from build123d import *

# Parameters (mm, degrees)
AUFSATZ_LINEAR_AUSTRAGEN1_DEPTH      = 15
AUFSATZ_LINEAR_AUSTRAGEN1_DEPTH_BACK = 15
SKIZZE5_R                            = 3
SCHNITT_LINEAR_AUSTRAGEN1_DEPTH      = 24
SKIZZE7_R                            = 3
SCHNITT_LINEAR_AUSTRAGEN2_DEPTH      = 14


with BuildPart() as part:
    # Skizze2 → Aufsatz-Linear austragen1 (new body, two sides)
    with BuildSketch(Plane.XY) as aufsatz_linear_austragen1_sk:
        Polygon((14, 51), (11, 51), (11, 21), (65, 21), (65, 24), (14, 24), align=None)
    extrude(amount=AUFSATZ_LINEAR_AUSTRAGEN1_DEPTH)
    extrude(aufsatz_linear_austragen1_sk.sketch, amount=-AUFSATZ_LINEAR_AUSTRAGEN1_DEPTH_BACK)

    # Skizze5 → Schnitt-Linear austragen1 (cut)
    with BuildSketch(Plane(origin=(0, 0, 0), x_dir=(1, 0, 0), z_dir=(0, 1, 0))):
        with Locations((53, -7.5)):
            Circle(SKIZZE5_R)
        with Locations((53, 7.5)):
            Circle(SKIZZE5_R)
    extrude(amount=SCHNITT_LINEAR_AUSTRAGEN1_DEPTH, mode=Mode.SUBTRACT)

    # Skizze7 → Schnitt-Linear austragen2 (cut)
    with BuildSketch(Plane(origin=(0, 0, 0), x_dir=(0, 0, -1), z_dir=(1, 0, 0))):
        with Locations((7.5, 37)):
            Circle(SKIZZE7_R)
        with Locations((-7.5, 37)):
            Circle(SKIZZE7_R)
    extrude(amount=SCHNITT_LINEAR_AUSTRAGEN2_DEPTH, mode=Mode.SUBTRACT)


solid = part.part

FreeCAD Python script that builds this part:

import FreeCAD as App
import Part
import Sketcher
Q = App.Units.Quantity


def add_polygon(sketch, points):
    """Adds a closed chain of lines whose ends are joined by coincident constraints."""
    first, n = sketch.GeometryCount, len(points)
    for a, b in zip(points, points[1:] + points[:1]):
        sketch.addGeometry(Part.LineSegment(App.Vector(*a, 0), App.Vector(*b, 0)), False)
    for i in range(n):
        sketch.addConstraint(Sketcher.Constraint("Coincident", first + i, 2, first + (i + 1) % n, 1))

doc = App.newDocument("Part")
body = doc.addObject("PartDesign::Body", "Body")

# Sketch on XY plane
sketch1 = body.newObject("Sketcher::SketchObject", "Sketch")
sketch1.AttachmentSupport = (doc.getObject("XY_Plane"), [""])
sketch1.MapMode = "FlatFace"
add_polygon(sketch1, [(14, 51), (11, 51), (11, 21), (65, 21), (65, 24), (14, 24)])  # lines 0-5
sketch1.addConstraint([
    Sketcher.Constraint("Horizontal", 0),
    Sketcher.Constraint("Vertical", 1),
    Sketcher.Constraint("Horizontal", 2),
    Sketcher.Constraint("Vertical", 3),
    Sketcher.Constraint("Horizontal", 4),
    Sketcher.Constraint("Vertical", 5),
    Sketcher.Constraint("Equal", 0, 3),
    Sketcher.Constraint("DistanceX", 0, 2, 0, 1, Q("3 mm")),
    Sketcher.Constraint("DistanceX", 2, 1, 2, 2, Q("54 mm")),
    Sketcher.Constraint("DistanceY", 1, 2, 1, 1, Q("30 mm")),
    Sketcher.Constraint("DistanceX", -1, 1, 0, 2, Q("11 mm")),
    Sketcher.Constraint("DistanceY", -1, 1, 0, 2, Q("51 mm")),
])
pad1 = body.newObject("PartDesign::Pad", "Pad")
pad1.Profile = sketch1
pad1.Type = "TwoLengths"
pad1.Length = 15
pad1.Length2 = 15

# Sketch on XZ plane
sketch2 = body.newObject("Sketcher::SketchObject", "Sketch001")
sketch2.AttachmentSupport = (doc.getObject("XZ_Plane"), [""])
sketch2.MapMode = "FlatFace"
sketch2.addGeometry([
    Part.Circle(App.Vector(53, 7.5, 0), App.Vector(0, 0, 1), 3),
    Part.Circle(App.Vector(53, -7.5, 0), App.Vector(0, 0, 1), 3),
], False)
sketch2.addConstraint([
    Sketcher.Constraint("Equal", 0, 1),
    Sketcher.Constraint("Symmetric", 0, 3, 1, 3, -1),
    Sketcher.Constraint("Diameter", 0, Q("6 mm")),
    Sketcher.Constraint("DistanceX", -1, 1, 0, 3, Q("53 mm")),
    Sketcher.Constraint("DistanceY", 1, 3, 0, 3, Q("15 mm")),
])
pocket1 = body.newObject("PartDesign::Pocket", "Pocket")
pocket1.Profile = sketch2
pocket1.Length = 24

# Sketch on YZ plane
sketch3 = body.newObject("Sketcher::SketchObject", "Sketch002")
sketch3.AttachmentSupport = (doc.getObject("YZ_Plane"), [""])
sketch3.MapMode = "FlatFace"
sketch3.addGeometry([
    Part.Circle(App.Vector(37, -7.5, 0), App.Vector(0, 0, 1), 3),
    Part.Circle(App.Vector(37, 7.5, 0), App.Vector(0, 0, 1), 3),
], False)
sketch3.addConstraint([
    Sketcher.Constraint("Equal", 0, 1),
    Sketcher.Constraint("Symmetric", 0, 3, 1, 3, -1),
    Sketcher.Constraint("Diameter", 0, Q("6 mm")),
    Sketcher.Constraint("DistanceX", -1, 1, 0, 3, Q("37 mm")),
    Sketcher.Constraint("DistanceY", 0, 3, 1, 3, Q("15 mm")),
])
pocket2 = body.newObject("PartDesign::Pocket", "Pocket001")
pocket2.Profile = sketch3
pocket2.Length = 14
pocket2.Reversed = True

doc.recompute()
